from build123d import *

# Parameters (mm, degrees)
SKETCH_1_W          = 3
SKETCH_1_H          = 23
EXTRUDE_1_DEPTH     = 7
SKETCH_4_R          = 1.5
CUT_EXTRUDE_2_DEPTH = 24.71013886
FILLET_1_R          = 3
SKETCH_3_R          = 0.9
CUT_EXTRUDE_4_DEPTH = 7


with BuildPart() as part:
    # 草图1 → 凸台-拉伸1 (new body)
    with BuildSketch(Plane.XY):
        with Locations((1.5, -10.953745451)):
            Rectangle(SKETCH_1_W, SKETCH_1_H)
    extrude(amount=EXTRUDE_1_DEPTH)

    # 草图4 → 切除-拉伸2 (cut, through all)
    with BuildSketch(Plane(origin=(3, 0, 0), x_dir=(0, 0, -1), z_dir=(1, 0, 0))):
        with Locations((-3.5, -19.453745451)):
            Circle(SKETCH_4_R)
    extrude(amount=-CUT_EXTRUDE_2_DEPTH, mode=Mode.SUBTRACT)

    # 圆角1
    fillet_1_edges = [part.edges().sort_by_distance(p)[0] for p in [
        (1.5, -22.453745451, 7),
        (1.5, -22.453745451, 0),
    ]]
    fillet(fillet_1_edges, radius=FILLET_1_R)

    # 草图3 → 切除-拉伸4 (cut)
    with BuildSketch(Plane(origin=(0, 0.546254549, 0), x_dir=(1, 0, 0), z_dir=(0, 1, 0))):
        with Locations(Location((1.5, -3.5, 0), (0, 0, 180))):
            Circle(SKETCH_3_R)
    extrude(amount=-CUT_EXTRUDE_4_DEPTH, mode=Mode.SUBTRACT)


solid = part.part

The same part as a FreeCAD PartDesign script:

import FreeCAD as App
import Part
import Sketcher
from FreeCAD import Vector
Q = App.Units.Quantity


def edges_at(feature, points):
    """Names of the edges that pass closest to the given points."""
    edges = feature.Shape.Edges
    near = lambda p: min(range(len(edges)), key=lambda i: edges[i].distToShape(Part.Vertex(*p))[0])
    return sorted({f"Edge{near(p) + 1}" for p in points})


def add_polygon(sketch, points):
    """Adds a closed chain of lines whose ends are joined by coincident constraints."""
    first, n = sketch.GeometryCount, len(points)
    for a, b in zip(points, points[1:] + points[:1]):
        sketch.addGeometry(Part.LineSegment(App.Vector(*a, 0), App.Vector(*b, 0)), False)
    for i in range(n):
        sketch.addConstraint(Sketcher.Constraint("Coincident", first + i, 2, first + (i + 1) % n, 1))

doc = App.newDocument("Part")
params = doc.addObject("Spreadsheet::Sheet", "Params")
for row, (alias, value) in enumerate([
    ("sketch1_width", "3 mm"),
    ("sketch1_height", "23 mm"),
    ("pad1_length", "7 mm"),
    ("sketch2_diameter", "3 mm"),
    ("fillet_radius", "3 mm"),
    ("sketch3_diameter", "1.8 mm"),
    ("pocket2_length", "7 mm"),
], start=1):
    params.set(f"A{row}", alias)
    params.set(f"B{row}", "=" + value)
    params.setAlias(f"B{row}", alias)

body = doc.addObject("PartDesign::Body", "Body")

# Sketch on XY plane
sketch1 = doc.addObject("Sketcher::SketchObject", "Sketch")
body.addObject(sketch1)
sketch1.AttachmentSupport = (doc.XY_Plane, [""])
sketch1.MapMode = "FlatFace"
add_polygon(sketch1, [(0, 0.5), (0, -22.5), (3, -22.5), (3, 0.5)])  # lines 0-3
sketch1.addConstraint([
    Sketcher.Constraint("Vertical", 0),
    Sketcher.Constraint("Horizontal", 1),
    Sketcher.Constraint("Vertical", 2),
    Sketcher.Constraint("Horizontal", 3),
    Sketcher.Constraint("PointOnObject", 0, 2, -2),
    Sketcher.Constraint("DistanceX", 1, 1, 1, 2, Q("3 mm")),
    Sketcher.Constraint("DistanceY", 0, 2, 0, 1, Q("23 mm")),
    Sketcher.Constraint("DistanceY", 0, 2, -1, 1, Q("22.453745 mm")),
])
sketch1.setExpression("Constraints[9]", "Params.sketch1_width")
sketch1.setExpression("Constraints[10]", "Params.sketch1_height")
pad1 = doc.addObject("PartDesign::Pad", "Pad")
body.addObject(pad1)
pad1.Profile = sketch1
pad1.setExpression("Length", "Params.pad1_length")

# Sketch on YZ plane
sketch2 = doc.addObject("Sketcher::SketchObject", "Sketch001")
body.addObject(sketch2)
sketch2.AttachmentSupport = (doc.YZ_Plane, [""])
sketch2.MapMode = "FlatFace"
sketch2.AttachmentOffset = App.Placement(Vector(0, 0, 3), App.Rotation())
sketch2.addGeometry(Part.Circle(Vector(-19.5, 3.5, 0), Vector(0, 0, 1), 1.5), False)
sketch2.addConstraint([
    Sketcher.Constraint("Diameter", 0, Q("3 mm")),
    Sketcher.Constraint("DistanceY", -1, 1, 0, 3, Q("3.5 mm")),
    Sketcher.Constraint("DistanceX", 0, 3, -1, 1, Q("19.453745 mm")),
])
sketch2.setExpression("Constraints[0]", "Params.sketch2_diameter")
pocket1 = doc.addObject("PartDesign::Pocket", "Pocket")
body.addObject(pocket1)
pocket1.Profile = sketch2
pocket1.Type = "ThroughAll"
doc.recompute()

fillet = doc.addObject("PartDesign::Fillet", "Fillet")
body.addObject(fillet)
fillet.Base = (pocket1, edges_at(pocket1, [(1.5, -22.454, 7), (1.5, -22.454, 0)]))
fillet.setExpression("Radius", "Params.fillet_radius")

# Sketch on XZ plane
sketch3 = doc.addObject("Sketcher::SketchObject", "Sketch002")
body.addObject(sketch3)
sketch3.AttachmentSupport = (doc.XZ_Plane, [""])
sketch3.MapMode = "FlatFace"
sketch3.AttachmentOffset = App.Placement(Vector(0, 0, -0.546255), App.Rotation())
sketch3.addGeometry(Part.Circle(Vector(1.5, 3.5, 0), Vector(0, 0, 1), 0.9), False)
sketch3.addConstraint([
    Sketcher.Constraint("Diameter", 0, Q("1.8 mm")),
    Sketcher.Constraint("DistanceX", -1, 1, 0, 3, Q("1.5 mm")),
    Sketcher.Constraint("DistanceY", -1, 1, 0, 3, Q("3.5 mm")),
])
sketch3.setExpression("Constraints[0]", "Params.sketch3_diameter")
pocket2 = doc.addObject("PartDesign::Pocket", "Pocket001")
body.addObject(pocket2)
pocket2.Profile = sketch3
pocket2.setExpression("Length", "Params.pocket2_length")
pocket2.Reversed = True

doc.recompute()
